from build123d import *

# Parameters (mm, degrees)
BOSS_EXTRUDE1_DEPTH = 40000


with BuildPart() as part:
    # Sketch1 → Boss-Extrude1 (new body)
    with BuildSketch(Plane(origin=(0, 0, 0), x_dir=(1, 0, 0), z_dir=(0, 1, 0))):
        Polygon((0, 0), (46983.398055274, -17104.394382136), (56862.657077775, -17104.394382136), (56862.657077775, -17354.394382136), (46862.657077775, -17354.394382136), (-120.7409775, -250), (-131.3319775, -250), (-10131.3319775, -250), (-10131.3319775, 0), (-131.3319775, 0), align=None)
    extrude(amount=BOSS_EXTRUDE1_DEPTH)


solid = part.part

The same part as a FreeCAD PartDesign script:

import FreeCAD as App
import Part
import Sketcher
from FreeCAD import Vector
Q = App.Units.Quantity

doc = App.newDocument("Part")
params = doc.addObject("Spreadsheet::Sheet", "Params")
for row, (alias, value) in enumerate([
    ("sketch1_width", "10000 mm"),
    ("sketch1_height", "250 mm"),
    ("sketch1_length", "50000 mm"),
    ("pad1_length", "40000 mm"),
], start=1):
    params.set(f"A{row}", alias)
    params.set(f"B{row}", "=" + value)
    params.setAlias(f"B{row}", alias)

body = doc.addObject("PartDesign::Body", "Body")

# Sketch on XZ plane
sketch1 = body.newObject("Sketcher::SketchObject", "Sketch")
sketch1.AttachmentSupport = (doc.getObject("XZ_Plane"), [""])
sketch1.MapMode = "FlatFace"
sketch1.addGeometry(Part.LineSegment(Vector(46983, 17104, 0), Vector(0, 0, 0)), False)
sketch1.addGeometry(Part.LineSegment(Vector(0, 0, 0), Vector(-10131, 0, 0)), False)
sketch1.addGeometry(Part.LineSegment(Vector(-10131, 0, 0), Vector(-10131, 250, 0)), False)
sketch1.addGeometry(Part.LineSegment(Vector(-10131, 250, 0), Vector(-121, 250, 0)), False)
sketch1.addGeometry(Part.LineSegment(Vector(-121, 250, 0), Vector(46863, 17354, 0)), False)
sketch1.addGeometry(Part.LineSegment(Vector(46863, 17354, 0), Vector(56863, 17354, 0)), False)
sketch1.addGeometry(Part.LineSegment(Vector(56863, 17354, 0), Vector(56863, 17104, 0)), False)
sketch1.addGeometry(Part.LineSegment(Vector(56863, 17104, 0), Vector(46983, 17104, 0)), False)
sketch1.addConstraint(Sketcher.Constraint("Coincident", 0, 2, 1, 1))
sketch1.addConstraint(Sketcher.Constraint("Coincident", 1, 2, 2, 1))
sketch1.addConstraint(Sketcher.Constraint("Coincident", 2, 2, 3, 1))
sketch1.addConstraint(Sketcher.Constraint("Coincident", 3, 2, 4, 1))
sketch1.addConstraint(Sketcher.Constraint("Coincident", 4, 2, 5, 1))
sketch1.addConstraint(Sketcher.Constraint("Coincident", 5, 2, 6, 1))
sketch1.addConstraint(Sketcher.Constraint("Coincident", 6, 2, 7, 1))
sketch1.addConstraint(Sketcher.Constraint("Coincident", 7, 2, 0, 1))
sketch1.addConstraint(Sketcher.Constraint("Horizontal", 1))
sketch1.addConstraint(Sketcher.Constraint("Vertical", 2))
sketch1.addConstraint(Sketcher.Constraint("Horizontal", 3))
sketch1.addConstraint(Sketcher.Constraint("Horizontal", 5))
sketch1.addConstraint(Sketcher.Constraint("Vertical", 6))
sketch1.addConstraint(Sketcher.Constraint("Horizontal", 7))
sketch1.addConstraint(Sketcher.Constraint("Coincident", 0, 2, -1, 1))
sketch1.addConstraint(Sketcher.Constraint("Parallel", 0, 4))
sketch1.addConstraint(Sketcher.Constraint("Equal", 2, 6))
sketch1.addConstraint(Sketcher.Constraint("DistanceX", 5, 1, 5, 2, Q("10000 mm")))
sketch1.addConstraint(Sketcher.Constraint("DistanceY", 2, 1, 2, 2, Q("250 mm")))
sketch1.addConstraint(Sketcher.Constraint("Distance", 0, Q("50000 mm")))
sketch1.addConstraint(Sketcher.Constraint("DistanceX", 3, 1, 3, 2, Q("10010.591 mm")))
sketch1.addConstraint(Sketcher.Constraint("DistanceX", 1, 2, 1, 1, Q("10131.331977 mm")))
sketch1.addConstraint(Sketcher.Constraint("DistanceX", -1, 1, 4, 2, Q("46862.657078 mm")))
sketch1.setExpression("Constraints[17]", "Params.sketch1_width")
sketch1.setExpression("Constraints[18]", "Params.sketch1_height")
sketch1.setExpression("Constraints[19]", "Params.sketch1_length")
pad1 = body.newObject("PartDesign::Pad", "Pad")
pad1.Profile = sketch1
pad1.setExpression("Length", "Params.pad1_length")
pad1.Reversed = True

doc.recompute()
